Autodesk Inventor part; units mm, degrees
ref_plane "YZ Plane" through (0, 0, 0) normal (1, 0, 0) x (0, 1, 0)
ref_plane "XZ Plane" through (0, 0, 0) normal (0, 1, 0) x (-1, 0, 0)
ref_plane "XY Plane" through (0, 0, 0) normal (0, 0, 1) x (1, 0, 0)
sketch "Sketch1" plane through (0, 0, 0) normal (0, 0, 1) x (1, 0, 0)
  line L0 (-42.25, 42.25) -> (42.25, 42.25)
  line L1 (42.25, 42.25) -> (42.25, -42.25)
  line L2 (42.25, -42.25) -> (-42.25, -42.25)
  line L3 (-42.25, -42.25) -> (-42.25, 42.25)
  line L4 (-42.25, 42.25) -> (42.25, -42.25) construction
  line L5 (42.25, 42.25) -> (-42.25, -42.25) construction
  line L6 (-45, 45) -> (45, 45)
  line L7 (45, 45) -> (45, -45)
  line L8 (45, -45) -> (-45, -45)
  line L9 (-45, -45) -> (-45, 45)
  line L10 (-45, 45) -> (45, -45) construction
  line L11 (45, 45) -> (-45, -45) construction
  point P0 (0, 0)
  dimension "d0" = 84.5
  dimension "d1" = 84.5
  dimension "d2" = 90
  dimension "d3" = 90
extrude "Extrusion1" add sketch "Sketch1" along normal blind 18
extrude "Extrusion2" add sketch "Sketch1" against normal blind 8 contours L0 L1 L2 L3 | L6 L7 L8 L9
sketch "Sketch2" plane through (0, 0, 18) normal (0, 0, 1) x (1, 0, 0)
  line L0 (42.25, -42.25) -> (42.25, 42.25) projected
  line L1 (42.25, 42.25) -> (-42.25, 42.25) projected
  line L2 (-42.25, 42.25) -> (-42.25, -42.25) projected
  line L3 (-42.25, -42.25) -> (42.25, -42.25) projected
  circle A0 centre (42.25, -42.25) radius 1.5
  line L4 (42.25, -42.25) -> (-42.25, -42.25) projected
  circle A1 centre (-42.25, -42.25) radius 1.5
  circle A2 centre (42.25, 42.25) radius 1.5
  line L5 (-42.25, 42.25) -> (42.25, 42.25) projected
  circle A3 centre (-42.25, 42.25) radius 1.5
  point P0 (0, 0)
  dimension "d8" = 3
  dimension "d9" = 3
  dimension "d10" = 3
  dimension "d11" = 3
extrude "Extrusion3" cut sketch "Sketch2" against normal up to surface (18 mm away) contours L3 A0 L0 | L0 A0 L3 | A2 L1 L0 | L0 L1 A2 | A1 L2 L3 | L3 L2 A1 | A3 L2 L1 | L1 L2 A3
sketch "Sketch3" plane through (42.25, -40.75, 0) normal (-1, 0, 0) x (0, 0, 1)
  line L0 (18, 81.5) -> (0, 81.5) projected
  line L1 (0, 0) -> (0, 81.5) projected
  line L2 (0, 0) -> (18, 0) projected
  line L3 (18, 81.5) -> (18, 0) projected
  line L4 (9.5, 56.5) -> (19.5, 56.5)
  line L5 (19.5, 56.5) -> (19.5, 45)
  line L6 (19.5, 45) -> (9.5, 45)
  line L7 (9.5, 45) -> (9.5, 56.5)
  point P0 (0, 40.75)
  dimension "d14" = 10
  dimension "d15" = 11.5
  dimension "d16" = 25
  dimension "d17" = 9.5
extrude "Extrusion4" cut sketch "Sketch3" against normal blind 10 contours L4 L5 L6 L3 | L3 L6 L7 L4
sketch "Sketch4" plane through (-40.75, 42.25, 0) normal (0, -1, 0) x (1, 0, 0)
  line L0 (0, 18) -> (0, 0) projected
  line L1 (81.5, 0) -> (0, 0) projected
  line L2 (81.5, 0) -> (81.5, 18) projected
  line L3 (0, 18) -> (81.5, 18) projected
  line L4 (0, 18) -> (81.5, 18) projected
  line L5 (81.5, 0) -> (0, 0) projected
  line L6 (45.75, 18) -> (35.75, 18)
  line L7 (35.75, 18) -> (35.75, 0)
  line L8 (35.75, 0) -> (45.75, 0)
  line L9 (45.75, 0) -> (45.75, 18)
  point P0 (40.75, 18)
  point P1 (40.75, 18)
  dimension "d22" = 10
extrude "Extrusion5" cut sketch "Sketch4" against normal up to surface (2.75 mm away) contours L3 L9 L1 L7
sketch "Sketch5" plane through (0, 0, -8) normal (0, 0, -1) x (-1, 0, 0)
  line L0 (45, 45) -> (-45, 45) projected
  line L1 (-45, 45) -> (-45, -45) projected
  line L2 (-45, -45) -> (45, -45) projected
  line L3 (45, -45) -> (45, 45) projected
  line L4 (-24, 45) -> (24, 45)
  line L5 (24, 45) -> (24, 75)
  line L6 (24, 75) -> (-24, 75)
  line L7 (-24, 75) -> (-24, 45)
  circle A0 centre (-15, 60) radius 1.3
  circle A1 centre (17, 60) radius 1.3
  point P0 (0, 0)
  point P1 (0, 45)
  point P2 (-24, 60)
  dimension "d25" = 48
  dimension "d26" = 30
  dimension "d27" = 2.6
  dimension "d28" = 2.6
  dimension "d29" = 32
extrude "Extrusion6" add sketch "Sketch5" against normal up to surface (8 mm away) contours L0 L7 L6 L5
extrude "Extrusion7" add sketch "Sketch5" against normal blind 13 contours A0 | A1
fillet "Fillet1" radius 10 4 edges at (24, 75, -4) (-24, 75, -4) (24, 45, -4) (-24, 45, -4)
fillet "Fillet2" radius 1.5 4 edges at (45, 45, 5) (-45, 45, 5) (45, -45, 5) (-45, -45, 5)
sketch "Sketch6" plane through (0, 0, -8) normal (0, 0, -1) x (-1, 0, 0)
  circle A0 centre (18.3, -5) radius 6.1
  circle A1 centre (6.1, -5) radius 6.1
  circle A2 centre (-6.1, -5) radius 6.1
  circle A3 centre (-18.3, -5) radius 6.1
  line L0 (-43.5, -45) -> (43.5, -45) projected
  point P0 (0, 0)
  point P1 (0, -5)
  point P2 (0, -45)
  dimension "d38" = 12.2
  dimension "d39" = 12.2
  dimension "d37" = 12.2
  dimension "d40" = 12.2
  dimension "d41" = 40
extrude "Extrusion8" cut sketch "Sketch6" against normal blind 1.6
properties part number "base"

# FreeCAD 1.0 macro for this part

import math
import FreeCAD as App
import Part
import Sketcher


def edges_at(feature, points):
    """Names of the edges that pass closest to the given points."""
    edges = feature.Shape.Edges
    near = lambda p: min(range(len(edges)), key=lambda i: edges[i].distToShape(Part.Vertex(*p))[0])
    return sorted({f"Edge{near(p) + 1}" for p in points})

doc = App.newDocument("Part")
body = doc.addObject("PartDesign::Body", "Body")

# Sketch on XY plane
sketch1 = body.newObject("Sketcher::SketchObject", "Sketch")
sketch1.AttachmentSupport = (doc.getObject("XY_Plane"), [""])
sketch1.MapMode = "FlatFace"
sketch1.addGeometry(Part.LineSegment(App.Vector(45, 45, 0), App.Vector(-45, 45, 0)), False)
sketch1.addGeometry(Part.LineSegment(App.Vector(-45, 45, 0), App.Vector(-45, -45, 0)), False)
sketch1.addGeometry(Part.LineSegment(App.Vector(-45, -45, 0), App.Vector(45, -45, 0)), False)
sketch1.addGeometry(Part.LineSegment(App.Vector(45, -45, 0), App.Vector(45, 45, 0)), False)
sketch1.addGeometry(Part.LineSegment(App.Vector(-42, -42, 0), App.Vector(-42, 42, 0)), False)
sketch1.addGeometry(Part.LineSegment(App.Vector(-42, 42, 0), App.Vector(42, 42, 0)), False)
sketch1.addGeometry(Part.LineSegment(App.Vector(42, 42, 0), App.Vector(42, -42, 0)), False)
sketch1.addGeometry(Part.LineSegment(App.Vector(42, -42, 0), App.Vector(-42, -42, 0)), False)
sketch1.addConstraint(Sketcher.Constraint("Coincident", 0, 2, 1, 1))
sketch1.addConstraint(Sketcher.Constraint("Coincident", 1, 2, 2, 1))
sketch1.addConstraint(Sketcher.Constraint("Coincident", 2, 2, 3, 1))
sketch1.addConstraint(Sketcher.Constraint("Coincident", 3, 2, 0, 1))
sketch1.addConstraint(Sketcher.Constraint("Coincident", 4, 2, 5, 1))
sketch1.addConstraint(Sketcher.Constraint("Coincident", 5, 2, 6, 1))
sketch1.addConstraint(Sketcher.Constraint("Coincident", 6, 2, 7, 1))
sketch1.addConstraint(Sketcher.Constraint("Coincident", 7, 2, 4, 1))
sketch1.addConstraint(Sketcher.Constraint("Horizontal", 0))
sketch1.addConstraint(Sketcher.Constraint("Vertical", 1))
sketch1.addConstraint(Sketcher.Constraint("Horizontal", 2))
sketch1.addConstraint(Sketcher.Constraint("Vertical", 3))
sketch1.addConstraint(Sketcher.Constraint("Vertical", 4))
sketch1.addConstraint(Sketcher.Constraint("Horizontal", 5))
sketch1.addConstraint(Sketcher.Constraint("Vertical", 6))
sketch1.addConstraint(Sketcher.Constraint("Horizontal", 7))
sketch1.addConstraint(Sketcher.Constraint("Symmetric", 0, 2, 2, 2, -1, 1))
sketch1.addConstraint(Sketcher.Constraint("Symmetric", 4, 2, 6, 2, -1, 1))
sketch1.addConstraint(Sketcher.Constraint("Equal", 2, 1))
sketch1.addConstraint(Sketcher.Constraint("Equal", 7, 4))
sketch1.addConstraint(Sketcher.Constraint("DistanceX", 0, 2, 0, 1, 90.0))
sketch1.addConstraint(Sketcher.Constraint("DistanceX", 5, 1, 5, 2, 84.5))
pad1 = body.newObject("PartDesign::Pad", "Pad")
pad1.Profile = sketch1
pad1.Length = 18

# Sketch on XY plane
sketch2 = body.newObject("Sketcher::SketchObject", "Sketch001")
sketch2.AttachmentSupport = (doc.getObject("XY_Plane"), [""])
sketch2.MapMode = "FlatFace"
sketch2.addGeometry(Part.LineSegment(App.Vector(45, 45, 0), App.Vector(-45, 45, 0)), False)
sketch2.addGeometry(Part.LineSegment(App.Vector(-45, 45, 0), App.Vector(-45, -45, 0)), False)
sketch2.addGeometry(Part.LineSegment(App.Vector(-45, -45, 0), App.Vector(45, -45, 0)), False)
sketch2.addGeometry(Part.LineSegment(App.Vector(45, -45, 0), App.Vector(45, 45, 0)), False)
sketch2.addConstraint(Sketcher.Constraint("Coincident", 0, 2, 1, 1))
sketch2.addConstraint(Sketcher.Constraint("Coincident", 1, 2, 2, 1))
sketch2.addConstraint(Sketcher.Constraint("Coincident", 2, 2, 3, 1))
sketch2.addConstraint(Sketcher.Constraint("Coincident", 3, 2, 0, 1))
sketch2.addConstraint(Sketcher.Constraint("Horizontal", 0))
sketch2.addConstraint(Sketcher.Constraint("Vertical", 1))
sketch2.addConstraint(Sketcher.Constraint("Horizontal", 2))
sketch2.addConstraint(Sketcher.Constraint("Vertical", 3))
sketch2.addConstraint(Sketcher.Constraint("Symmetric", 0, 2, 2, 2, -1, 1))
sketch2.addConstraint(Sketcher.Constraint("Equal", 2, 1))
sketch2.addConstraint(Sketcher.Constraint("DistanceX", 0, 2, 0, 1, 90.0))
pad2 = body.newObject("PartDesign::Pad", "Pad001")
pad2.Profile = sketch2
pad2.Length = 8
pad2.Reversed = True

# Sketch on XY plane
sketch3 = body.newObject("Sketcher::SketchObject", "Sketch002")
sketch3.AttachmentSupport = (doc.getObject("XY_Plane"), [""])
sketch3.MapMode = "FlatFace"
sketch3.AttachmentOffset = App.Placement(App.Vector(0, 0, 18), App.Rotation())
sketch3.addGeometry(Part.Circle(App.Vector(42.2, -42.2, 0), App.Vector(0, 0, 1), 1.5), False)
sketch3.addGeometry(Part.Circle(App.Vector(42.2, 42.2, 0), App.Vector(0, 0, 1), 1.5), False)
sketch3.addGeometry(Part.Circle(App.Vector(-42.2, -42.2, 0), App.Vector(0, 0, 1), 1.5), False)
sketch3.addGeometry(Part.Circle(App.Vector(-42.2, 42.2, 0), App.Vector(0, 0, 1), 1.5), False)
sketch3.addConstraint(Sketcher.Constraint("Equal", 0, 1))
sketch3.addConstraint(Sketcher.Constraint("Equal", 1, 2))
sketch3.addConstraint(Sketcher.Constraint("Equal", 2, 3))
sketch3.addConstraint(Sketcher.Constraint("Symmetric", 1, 3, 2, 3, -1, 1))
sketch3.addConstraint(Sketcher.Constraint("Symmetric", 0, 3, 3, 3, -1, 1))
sketch3.addConstraint(Sketcher.Constraint("Symmetric", 0, 3, 2, 3, -2))
sketch3.addConstraint(Sketcher.Constraint("Diameter", 0, 3.0))
sketch3.addConstraint(Sketcher.Constraint("DistanceY", 0, 3, 1, 3, 84.5))
sketch3.addConstraint(Sketcher.Constraint("DistanceX", 2, 3, 0, 3, 84.5))
pocket1 = body.newObject("PartDesign::Pocket", "Pocket")
pocket1.Profile = sketch3
pocket1.Length = 18

# Sketch on YZ plane
sketch4 = body.newObject("Sketcher::SketchObject", "Sketch003")
sketch4.AttachmentSupport = (doc.getObject("YZ_Plane"), [""])
sketch4.MapMode = "FlatFace"
sketch4.AttachmentOffset = App.Placement(App.Vector(0, 0, 42.25), App.Rotation())
sketch4.addGeometry(Part.LineSegment(App.Vector(16, 20, 0), App.Vector(16, 10, 0)), False)
sketch4.addGeometry(Part.LineSegment(App.Vector(16, 10, 0), App.Vector(4, 10, 0)), False)
sketch4.addGeometry(Part.LineSegment(App.Vector(4, 10, 0), App.Vector(4, 20, 0)), False)
sketch4.addGeometry(Part.LineSegment(App.Vector(4, 20, 0), App.Vector(16, 20, 0)), False)
sketch4.addConstraint(Sketcher.Constraint("Coincident", 0, 2, 1, 1))
sketch4.addConstraint(Sketcher.Constraint("Coincident", 1, 2, 2, 1))
sketch4.addConstraint(Sketcher.Constraint("Coincident", 2, 2, 3, 1))
sketch4.addConstraint(Sketcher.Constraint("Coincident", 3, 2, 0, 1))
sketch4.addConstraint(Sketcher.Constraint("Vertical", 0))
sketch4.addConstraint(Sketcher.Constraint("Horizontal", 1))
sketch4.addConstraint(Sketcher.Constraint("Vertical", 2))
sketch4.addConstraint(Sketcher.Constraint("Horizontal", 3))
sketch4.addConstraint(Sketcher.Constraint("DistanceY", 0, 2, 0, 1, 10.0))
sketch4.addConstraint(Sketcher.Constraint("DistanceX", 1, 2, 1, 1, 11.5))
sketch4.addConstraint(Sketcher.Constraint("DistanceY", -1, 1, 0, 2, 9.5))
sketch4.addConstraint(Sketcher.Constraint("DistanceX", -1, 1, 0, 2, 15.75))
pocket2 = body.newObject("PartDesign::Pocket", "Pocket001")
pocket2.Profile = sketch4
pocket2.Length = 10
pocket2.Reversed = True

# Sketch on XZ plane
sketch5 = body.newObject("Sketcher::SketchObject", "Sketch004")
sketch5.AttachmentSupport = (doc.getObject("XZ_Plane"), [""])
sketch5.MapMode = "FlatFace"
sketch5.AttachmentOffset = App.Placement(App.Vector(0, 0, -42.25), App.Rotation())
sketch5.addGeometry(Part.LineSegment(App.Vector(5, 18, 0), App.Vector(-5, 18, 0)), False)
sketch5.addGeometry(Part.LineSegment(App.Vector(-5, 18, 0), App.Vector(-5, 0, 0)), False)
sketch5.addGeometry(Part.LineSegment(App.Vector(-5, 0, 0), App.Vector(5, 0, 0)), False)
sketch5.addGeometry(Part.LineSegment(App.Vector(5, 0, 0), App.Vector(5, 18, 0)), False)
sketch5.addConstraint(Sketcher.Constraint("Coincident", 0, 2, 1, 1))
sketch5.addConstraint(Sketcher.Constraint("Coincident", 1, 2, 2, 1))
sketch5.addConstraint(Sketcher.Constraint("Coincident", 2, 2, 3, 1))
sketch5.addConstraint(Sketcher.Constraint("Coincident", 3, 2, 0, 1))
sketch5.addConstraint(Sketcher.Constraint("Horizontal", 0))
sketch5.addConstraint(Sketcher.Constraint("Vertical", 1))
sketch5.addConstraint(Sketcher.Constraint("Horizontal", 2))
sketch5.addConstraint(Sketcher.Constraint("Vertical", 3))
sketch5.addConstraint(Sketcher.Constraint("Symmetric", 1, 2, 2, 2, -1, 1))
sketch5.addConstraint(Sketcher.Constraint("DistanceX", 0, 2, 0, 1, 10.0))
sketch5.addConstraint(Sketcher.Constraint("DistanceY", 1, 2, 1, 1, 18.0))
pocket3 = body.newObject("PartDesign::Pocket", "Pocket002")
pocket3.Profile = sketch5
pocket3.Length = 2.75

# Sketch on XY plane
sketch6 = body.newObject("Sketcher::SketchObject", "Sketch005")
sketch6.AttachmentSupport = (doc.getObject("XY_Plane"), [""])
sketch6.MapMode = "FlatFace"
sketch6.AttachmentOffset = App.Placement(App.Vector(0, 0, -8), App.Rotation())
sketch6.addGeometry(Part.LineSegment(App.Vector(24, 45, 0), App.Vector(-24, 45, 0)), False)
sketch6.addGeometry(Part.LineSegment(App.Vector(-24, 45, 0), App.Vector(-24, 75, 0)), False)
sketch6.addGeometry(Part.LineSegment(App.Vector(-24, 75, 0), App.Vector(24, 75, 0)), False)
sketch6.addGeometry(Part.LineSegment(App.Vector(24, 75, 0), App.Vector(24, 45, 0)), False)
sketch6.addGeometry(Part.Circle(App.Vector(15, 60, 0), App.Vector(0, 0, 1), 1.3), False)
sketch6.addGeometry(Part.Circle(App.Vector(-17, 60, 0), App.Vector(0, 0, 1), 1.3), False)
sketch6.addConstraint(Sketcher.Constraint("Coincident", 0, 2, 1, 1))
sketch6.addConstraint(Sketcher.Constraint("Coincident", 1, 2, 2, 1))
sketch6.addConstraint(Sketcher.Constraint("Coincident", 2, 2, 3, 1))
sketch6.addConstraint(Sketcher.Constraint("Coincident", 3, 2, 0, 1))
sketch6.addConstraint(Sketcher.Constraint("Horizontal", 0))
sketch6.addConstraint(Sketcher.Constraint("Vertical", 1))
sketch6.addConstraint(Sketcher.Constraint("Horizontal", 2))
sketch6.addConstraint(Sketcher.Constraint("Vertical", 3))
sketch6.addConstraint(Sketcher.Constraint("Equal", 4, 5))
sketch6.addConstraint(Sketcher.Constraint("Horizontal", 4, 3, 5, 3))
sketch6.addConstraint(Sketcher.Constraint("Diameter", 4, 2.6))
sketch6.addConstraint(Sketcher.Constraint("DistanceX", 0, 2, 0, 1, 48.0))
sketch6.addConstraint(Sketcher.Constraint("DistanceY", 1, 1, 1, 2, 30.0))
sketch6.addConstraint(Sketcher.Constraint("DistanceX", 5, 3, 4, 3, 32.0))
sketch6.addConstraint(Sketcher.Constraint("DistanceX", -1, 1, 4, 3, 15.0))
sketch6.addConstraint(Sketcher.Constraint("DistanceY", -1, 1, 4, 3, 60.0))
sketch6.addConstraint(Sketcher.Constraint("DistanceX", 0, 2, -1, 1, 24.0))
sketch6.addConstraint(Sketcher.Constraint("DistanceY", -1, 1, 0, 2, 45.0))
pad3 = body.newObject("PartDesign::Pad", "Pad002")
pad3.Profile = sketch6
pad3.Length = 8

# Sketch on XY plane
sketch7 = body.newObject("Sketcher::SketchObject", "Sketch006")
sketch7.AttachmentSupport = (doc.getObject("XY_Plane"), [""])
sketch7.MapMode = "FlatFace"
sketch7.AttachmentOffset = App.Placement(App.Vector(0, 0, -8), App.Rotation())
sketch7.addGeometry(Part.Circle(App.Vector(15, 60, 0), App.Vector(0, 0, 1), 1.3), False)
sketch7.addGeometry(Part.Circle(App.Vector(-17, 60, 0), App.Vector(0, 0, 1), 1.3), False)
sketch7.addConstraint(Sketcher.Constraint("Equal", 0, 1))
sketch7.addConstraint(Sketcher.Constraint("Horizontal", 0, 3, 1, 3))
sketch7.addConstraint(Sketcher.Constraint("Diameter", 0, 2.6))
sketch7.addConstraint(Sketcher.Constraint("DistanceX", 1, 3, 0, 3, 32.0))
sketch7.addConstraint(Sketcher.Constraint("DistanceX", -1, 1, 0, 3, 15.0))
sketch7.addConstraint(Sketcher.Constraint("DistanceY", -1, 1, 0, 3, 60.0))
pad4 = body.newObject("PartDesign::Pad", "Pad003")
pad4.Profile = sketch7
pad4.Length = 13
doc.recompute()

fillet = body.newObject("PartDesign::Fillet", "Fillet")
fillet.Base = (pad4, edges_at(pad4, [
    (24, 75, -4),
    (-24, 75, -4),
    (24, 45, -4),
    (-24, 45, -4),
]))
fillet.Radius = 10
doc.recompute()

fillet2 = body.newObject("PartDesign::Fillet", "Fillet001")
fillet2.Base = (fillet, edges_at(fillet, [
    (45, 45, 5),
    (-45, 45, 5),
    (45, -45, 5),
    (-45, -45, 5),
]))
fillet2.Radius = 1.5

# Sketch on XY plane
sketch8 = body.newObject("Sketcher::SketchObject", "Sketch007")
sketch8.AttachmentSupport = (doc.getObject("XY_Plane"), [""])
sketch8.MapMode = "FlatFace"
sketch8.AttachmentOffset = App.Placement(App.Vector(0, 0, -8), App.Rotation())
sketch8.addGeometry(Part.Circle(App.Vector(-18, -5, 0), App.Vector(0, 0, 1), 6), False)
sketch8.addGeometry(Part.Circle(App.Vector(18, -5, 0), App.Vector(0, 0, 1), 6), False)
sketch8.addGeometry(Part.ArcOfCircle(Part.Circle(App.Vector(6, -5, 0), App.Vector(0, 0, 1), 6), math.radians(180), math.radians(360)), False)
sketch8.addGeometry(Part.ArcOfCircle(Part.Circle(App.Vector(6, -5, 0), App.Vector(0, 0, 1), 6), math.radians(0), math.radians(180)), False)
sketch8.addGeometry(Part.ArcOfCircle(Part.Circle(App.Vector(-6, -5, 0), App.Vector(0, 0, 1), 6), math.radians(180), math.radians(360)), False)
sketch8.addGeometry(Part.ArcOfCircle(Part.Circle(App.Vector(-6, -5, 0), App.Vector(0, 0, 1), 6), math.radians(0), math.radians(180)), False)
sketch8.addConstraint(Sketcher.Constraint("Tangent", 2, 1, 3, 2))
sketch8.addConstraint(Sketcher.Constraint("Coincident", 3, 1, 2, 2))
sketch8.addConstraint(Sketcher.Constraint("Tangent", 4, 1, 5, 2))
sketch8.addConstraint(Sketcher.Constraint("Coincident", 5, 1, 4, 2))
sketch8.addConstraint(Sketcher.Constraint("Coincident", 5, 1, 2, 1))
sketch8.addConstraint(Sketcher.Constraint("Equal", 0, 1))
sketch8.addConstraint(Sketcher.Constraint("Equal", 1, 2))
sketch8.addConstraint(Sketcher.Constraint("Equal", 3, 4))
sketch8.addConstraint(Sketcher.Constraint("Symmetric", 0, 3, 1, 3, -2))
sketch8.addConstraint(Sketcher.Constraint("Symmetric", 2, 3, 4, 3, -2))
sketch8.addConstraint(Sketcher.Constraint("Horizontal", 1, 3, 2, 3))
sketch8.addConstraint(Sketcher.Constraint("Horizontal", 5, 3, 2, 1))
sketch8.addConstraint(Sketcher.Constraint("Horizontal", 2, 1, 3, 1))
sketch8.addConstraint(Sketcher.Constraint("Horizontal", 3, 1, 4, 1))
sketch8.addConstraint(Sketcher.Constraint("Diameter", 0, 12.2))
sketch8.addConstraint(Sketcher.Constraint("DistanceX", 2, 3, 1, 3, 12.2))
sketch8.addConstraint(Sketcher.Constraint("DistanceY", 0, 3, -1, 1, 5.0))
pocket4 = body.newObject("PartDesign::Pocket", "Pocket003")
pocket4.Profile = sketch8
pocket4.Length = 1.6
pocket4.Reversed = True

doc.recompute()
